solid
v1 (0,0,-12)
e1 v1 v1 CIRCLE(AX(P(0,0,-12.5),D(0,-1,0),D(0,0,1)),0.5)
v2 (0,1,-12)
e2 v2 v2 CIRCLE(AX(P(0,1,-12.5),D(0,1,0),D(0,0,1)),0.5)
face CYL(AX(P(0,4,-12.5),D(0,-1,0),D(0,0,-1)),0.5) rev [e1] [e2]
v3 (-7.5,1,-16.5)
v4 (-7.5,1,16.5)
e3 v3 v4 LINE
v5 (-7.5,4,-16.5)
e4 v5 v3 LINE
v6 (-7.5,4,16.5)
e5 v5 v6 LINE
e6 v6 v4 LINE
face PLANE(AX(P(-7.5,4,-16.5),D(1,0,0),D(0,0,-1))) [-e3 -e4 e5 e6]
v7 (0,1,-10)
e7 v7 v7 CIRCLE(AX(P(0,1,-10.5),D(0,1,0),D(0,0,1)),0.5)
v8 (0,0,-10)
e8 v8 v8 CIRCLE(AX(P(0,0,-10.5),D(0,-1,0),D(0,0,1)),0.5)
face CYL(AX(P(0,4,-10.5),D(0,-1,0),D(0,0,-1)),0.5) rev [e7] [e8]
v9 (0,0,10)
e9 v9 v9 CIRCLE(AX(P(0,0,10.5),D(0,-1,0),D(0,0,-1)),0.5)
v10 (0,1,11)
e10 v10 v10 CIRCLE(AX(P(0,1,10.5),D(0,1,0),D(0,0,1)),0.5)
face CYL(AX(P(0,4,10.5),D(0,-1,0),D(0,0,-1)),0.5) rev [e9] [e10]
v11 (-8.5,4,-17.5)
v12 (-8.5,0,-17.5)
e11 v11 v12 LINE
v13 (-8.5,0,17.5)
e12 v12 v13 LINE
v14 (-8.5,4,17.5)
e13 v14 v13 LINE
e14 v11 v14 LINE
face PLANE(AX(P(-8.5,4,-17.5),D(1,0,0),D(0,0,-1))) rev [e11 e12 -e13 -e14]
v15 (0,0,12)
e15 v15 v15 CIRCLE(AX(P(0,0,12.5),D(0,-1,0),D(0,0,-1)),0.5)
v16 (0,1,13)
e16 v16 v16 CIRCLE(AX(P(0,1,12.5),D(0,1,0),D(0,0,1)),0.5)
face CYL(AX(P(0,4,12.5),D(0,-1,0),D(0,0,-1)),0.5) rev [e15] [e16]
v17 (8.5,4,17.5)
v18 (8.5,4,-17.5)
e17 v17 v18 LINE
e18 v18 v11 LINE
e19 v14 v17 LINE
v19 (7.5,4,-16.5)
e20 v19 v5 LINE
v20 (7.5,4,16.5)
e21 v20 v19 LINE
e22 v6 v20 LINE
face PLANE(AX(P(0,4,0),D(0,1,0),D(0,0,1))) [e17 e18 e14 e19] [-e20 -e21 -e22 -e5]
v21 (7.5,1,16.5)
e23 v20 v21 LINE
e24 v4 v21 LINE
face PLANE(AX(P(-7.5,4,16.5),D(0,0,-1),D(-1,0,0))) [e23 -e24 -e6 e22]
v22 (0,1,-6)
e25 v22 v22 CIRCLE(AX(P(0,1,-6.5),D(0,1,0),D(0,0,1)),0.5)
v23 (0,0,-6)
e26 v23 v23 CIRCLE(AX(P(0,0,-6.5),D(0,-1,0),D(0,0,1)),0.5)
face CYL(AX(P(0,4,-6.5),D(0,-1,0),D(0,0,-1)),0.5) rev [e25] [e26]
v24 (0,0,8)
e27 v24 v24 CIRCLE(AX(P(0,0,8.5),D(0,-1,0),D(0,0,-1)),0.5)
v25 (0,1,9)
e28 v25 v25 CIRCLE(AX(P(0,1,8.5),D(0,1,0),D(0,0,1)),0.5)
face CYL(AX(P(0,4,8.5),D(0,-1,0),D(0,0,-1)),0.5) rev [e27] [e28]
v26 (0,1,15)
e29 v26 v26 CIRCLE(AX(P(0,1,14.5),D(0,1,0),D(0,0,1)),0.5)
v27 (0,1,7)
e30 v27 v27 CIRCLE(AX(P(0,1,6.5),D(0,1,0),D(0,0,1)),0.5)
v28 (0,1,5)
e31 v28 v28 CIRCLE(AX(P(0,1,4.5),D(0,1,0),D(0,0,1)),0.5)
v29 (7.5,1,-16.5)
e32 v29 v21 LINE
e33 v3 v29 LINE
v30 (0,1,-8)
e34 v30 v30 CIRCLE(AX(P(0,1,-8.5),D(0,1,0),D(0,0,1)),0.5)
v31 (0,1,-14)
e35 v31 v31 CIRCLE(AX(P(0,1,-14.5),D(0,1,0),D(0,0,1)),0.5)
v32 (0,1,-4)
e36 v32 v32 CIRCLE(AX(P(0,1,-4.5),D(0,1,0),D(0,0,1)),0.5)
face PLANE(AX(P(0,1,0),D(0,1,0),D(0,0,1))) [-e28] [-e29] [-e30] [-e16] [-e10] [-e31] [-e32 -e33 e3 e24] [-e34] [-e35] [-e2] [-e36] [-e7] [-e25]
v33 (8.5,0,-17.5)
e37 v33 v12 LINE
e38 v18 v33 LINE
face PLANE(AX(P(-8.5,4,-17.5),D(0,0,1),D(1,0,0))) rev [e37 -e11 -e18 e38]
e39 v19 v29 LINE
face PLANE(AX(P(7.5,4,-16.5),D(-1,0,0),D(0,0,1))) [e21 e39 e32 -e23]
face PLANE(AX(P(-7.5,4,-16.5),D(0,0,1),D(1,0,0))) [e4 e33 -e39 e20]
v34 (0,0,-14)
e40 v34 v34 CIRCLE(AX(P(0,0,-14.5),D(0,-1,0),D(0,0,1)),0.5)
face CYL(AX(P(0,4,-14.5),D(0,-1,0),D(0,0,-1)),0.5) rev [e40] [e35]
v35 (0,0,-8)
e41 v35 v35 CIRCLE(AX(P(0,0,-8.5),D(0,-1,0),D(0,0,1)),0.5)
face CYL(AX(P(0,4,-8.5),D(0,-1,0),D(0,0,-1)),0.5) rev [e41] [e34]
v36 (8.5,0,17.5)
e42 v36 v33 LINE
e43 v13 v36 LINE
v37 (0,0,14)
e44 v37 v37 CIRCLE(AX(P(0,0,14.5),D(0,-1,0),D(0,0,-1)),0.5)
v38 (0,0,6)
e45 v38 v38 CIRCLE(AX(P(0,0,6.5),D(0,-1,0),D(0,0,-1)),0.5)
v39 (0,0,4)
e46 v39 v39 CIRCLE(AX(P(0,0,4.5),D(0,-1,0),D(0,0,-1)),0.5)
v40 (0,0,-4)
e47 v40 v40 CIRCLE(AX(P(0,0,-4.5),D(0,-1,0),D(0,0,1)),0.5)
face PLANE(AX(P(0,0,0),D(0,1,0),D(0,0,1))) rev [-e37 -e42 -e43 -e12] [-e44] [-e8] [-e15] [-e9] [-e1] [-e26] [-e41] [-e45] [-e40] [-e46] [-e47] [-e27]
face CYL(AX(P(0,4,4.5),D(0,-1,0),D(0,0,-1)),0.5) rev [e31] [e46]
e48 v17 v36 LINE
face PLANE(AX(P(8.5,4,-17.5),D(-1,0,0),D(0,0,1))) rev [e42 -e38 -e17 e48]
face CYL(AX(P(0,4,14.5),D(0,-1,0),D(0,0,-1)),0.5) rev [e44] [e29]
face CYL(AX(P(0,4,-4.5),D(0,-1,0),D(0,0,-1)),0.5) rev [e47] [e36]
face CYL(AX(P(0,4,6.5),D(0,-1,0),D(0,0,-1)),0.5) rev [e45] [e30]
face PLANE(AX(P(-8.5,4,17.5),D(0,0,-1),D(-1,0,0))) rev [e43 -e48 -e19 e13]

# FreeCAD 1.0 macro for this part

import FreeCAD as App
import Part
import Sketcher

V = App.Vector

doc = App.newDocument("Part")
params = doc.addObject("Spreadsheet::Sheet", "Params")
for row, (alias, value) in enumerate([
    ("sketch1_width", "17 mm"),
    ("sketch1_width2", "15 mm"),
    ("sketch1_height", "35 mm"),
    ("sketch1_height2", "33 mm"),
    ("pad1_length", "4 mm"),
    ("sketch2_width", "15 mm"),
    ("sketch2_height", "33 mm"),
    ("pad2_length", "1 mm"),
    ("sketch3_diameter", "1 mm"),
], start=1):
    params.set(f"A{row}", alias)
    params.set(f"B{row}", "=" + value)
    params.setAlias(f"B{row}", alias)

body = doc.addObject("PartDesign::Body", "Body")

# Sketch on XZ plane
sketch1 = doc.addObject("Sketcher::SketchObject", "Sketch")
body.addObject(sketch1)
sketch1.AttachmentSupport = (doc.XZ_Plane, [""])
sketch1.MapMode = "FlatFace"
sketch1.addGeometry([
    Part.LineSegment(V(-8.5, -17.5, 0), V(-8.5, 17.5, 0)),  # 0
    Part.LineSegment(V(-8.5, 17.5, 0), V(8.5, 17.5, 0)),  # 1
    Part.LineSegment(V(8.5, 17.5, 0), V(8.5, -17.5, 0)),  # 2
    Part.LineSegment(V(8.5, -17.5, 0), V(-8.5, -17.5, 0)),  # 3
    Part.LineSegment(V(7.5, 16.5, 0), V(-7.5, 16.5, 0)),  # 4
    Part.LineSegment(V(-7.5, 16.5, 0), V(-7.5, -16.5, 0)),  # 5
    Part.LineSegment(V(-7.5, -16.5, 0), V(7.5, -16.5, 0)),  # 6
    Part.LineSegment(V(7.5, -16.5, 0), V(7.5, 16.5, 0)),  # 7
], False)
sketch1.addConstraint([
    Sketcher.Constraint("Coincident", 0, 2, 1, 1),
    Sketcher.Constraint("Coincident", 1, 2, 2, 1),
    Sketcher.Constraint("Coincident", 2, 2, 3, 1),
    Sketcher.Constraint("Coincident", 3, 2, 0, 1),
    Sketcher.Constraint("Coincident", 4, 2, 5, 1),
    Sketcher.Constraint("Coincident", 5, 2, 6, 1),
    Sketcher.Constraint("Coincident", 6, 2, 7, 1),
    Sketcher.Constraint("Coincident", 7, 2, 4, 1),
    Sketcher.Constraint("Vertical", 0),
    Sketcher.Constraint("Horizontal", 1),
    Sketcher.Constraint("Vertical", 2),
    Sketcher.Constraint("Horizontal", 3),
    Sketcher.Constraint("Horizontal", 4),
    Sketcher.Constraint("Vertical", 5),
    Sketcher.Constraint("Horizontal", 6),
    Sketcher.Constraint("Vertical", 7),
    Sketcher.Constraint("Symmetric", 0, 2, 2, 2, -1, 1),
    Sketcher.Constraint("Symmetric", 4, 2, 6, 2, -1, 1),
    Sketcher.Constraint("DistanceX", 1, 1, 1, 2, 17.0),
    Sketcher.Constraint("DistanceX", 4, 2, 4, 1, 15.0),
    Sketcher.Constraint("DistanceY", 0, 1, 0, 2, 35.0),
    Sketcher.Constraint("DistanceY", 5, 2, 5, 1, 33.0),
])
sketch1.setExpression("Constraints[18]", "Params.sketch1_width")
sketch1.setExpression("Constraints[19]", "Params.sketch1_width2")
sketch1.setExpression("Constraints[20]", "Params.sketch1_height")
sketch1.setExpression("Constraints[21]", "Params.sketch1_height2")
pad1 = doc.addObject("PartDesign::Pad", "Pad")
body.addObject(pad1)
pad1.Profile = sketch1
pad1.setExpression("Length", "Params.pad1_length")
pad1.Reversed = True

# Sketch on XZ plane
sketch2 = doc.addObject("Sketcher::SketchObject", "Sketch001")
body.addObject(sketch2)
sketch2.AttachmentSupport = (doc.XZ_Plane, [""])
sketch2.MapMode = "FlatFace"
sketch2.addGeometry([
    Part.LineSegment(V(-7.5, -16.5, 0), V(-7.5, 16.5, 0)),
    Part.LineSegment(V(-7.5, 16.5, 0), V(7.5, 16.5, 0)),
    Part.LineSegment(V(7.5, 16.5, 0), V(7.5, -16.5, 0)),
    Part.LineSegment(V(7.5, -16.5, 0), V(-7.5, -16.5, 0)),
], False)
sketch2.addConstraint([
    Sketcher.Constraint("Coincident", 0, 2, 1, 1),
    Sketcher.Constraint("Coincident", 1, 2, 2, 1),
    Sketcher.Constraint("Coincident", 2, 2, 3, 1),
    Sketcher.Constraint("Coincident", 3, 2, 0, 1),
    Sketcher.Constraint("Vertical", 0),
    Sketcher.Constraint("Horizontal", 1),
    Sketcher.Constraint("Vertical", 2),
    Sketcher.Constraint("Horizontal", 3),
    Sketcher.Constraint("Symmetric", 0, 2, 2, 2, -1, 1),
    Sketcher.Constraint("DistanceX", 1, 1, 1, 2, 15.0),
    Sketcher.Constraint("DistanceY", 0, 1, 0, 2, 33.0),
])
sketch2.setExpression("Constraints[9]", "Params.sketch2_width")
sketch2.setExpression("Constraints[10]", "Params.sketch2_height")
pad2 = doc.addObject("PartDesign::Pad", "Pad001")
body.addObject(pad2)
pad2.Profile = sketch2
pad2.setExpression("Length", "Params.pad2_length")
pad2.Reversed = True

# Sketch on XZ plane
sketch3 = doc.addObject("Sketcher::SketchObject", "Sketch002")
body.addObject(sketch3)
sketch3.AttachmentSupport = (doc.XZ_Plane, [""])
sketch3.MapMode = "FlatFace"
sketch3.addGeometry([
    Part.Circle(V(0, 14.5, 0), V(0, 0, 1), 0.5),  # 0
    Part.Circle(V(0, 12.5, 0), V(0, 0, 1), 0.5),  # 1
    Part.Circle(V(0, 10.5, 0), V(0, 0, 1), 0.5),  # 2
    Part.Circle(V(0, 8.5, 0), V(0, 0, 1), 0.5),  # 3
    Part.Circle(V(0, 6.5, 0), V(0, 0, 1), 0.5),  # 4
    Part.Circle(V(0, 4.5, 0), V(0, 0, 1), 0.5),  # 5
    Part.Circle(V(0, -4.5, 0), V(0, 0, 1), 0.5),  # 6
    Part.Circle(V(0, -6.5, 0), V(0, 0, 1), 0.5),  # 7
    Part.Circle(V(0, -8.5, 0), V(0, 0, 1), 0.5),  # 8
    Part.Circle(V(0, -10.5, 0), V(0, 0, 1), 0.5),  # 9
    Part.Circle(V(0, -12.5, 0), V(0, 0, 1), 0.5),  # 10
    Part.Circle(V(0, -14.5, 0), V(0, 0, 1), 0.5),  # 11
], False)
sketch3.addConstraint([
    Sketcher.Constraint("Equal", 0, 1),
    Sketcher.Constraint("Equal", 1, 2),
    Sketcher.Constraint("Equal", 2, 3),
    Sketcher.Constraint("Equal", 3, 4),
    Sketcher.Constraint("Equal", 4, 5),
    Sketcher.Constraint("Equal", 5, 6),
    Sketcher.Constraint("Equal", 6, 7),
    Sketcher.Constraint("Equal", 7, 8),
    Sketcher.Constraint("Equal", 8, 9),
    Sketcher.Constraint("Equal", 9, 10),
    Sketcher.Constraint("Equal", 10, 11),
    Sketcher.Constraint("Symmetric", 5, 3, 6, 3, -1, 1),
    Sketcher.Constraint("Symmetric", 4, 3, 7, 3, -1, 1),
    Sketcher.Constraint("Symmetric", 3, 3, 8, 3, -1, 1),
    Sketcher.Constraint("Symmetric", 2, 3, 9, 3, -1, 1),
    Sketcher.Constraint("Symmetric", 1, 3, 10, 3, -1, 1),
    Sketcher.Constraint("Symmetric", 0, 3, 11, 3, -1, 1),
    Sketcher.Constraint("PointOnObject", 0, 3, -2),
    Sketcher.Constraint("PointOnObject", 1, 3, -2),
    Sketcher.Constraint("PointOnObject", 2, 3, -2),
    Sketcher.Constraint("PointOnObject", 3, 3, -2),
    Sketcher.Constraint("PointOnObject", 4, 3, -2),
    Sketcher.Constraint("PointOnObject", 5, 3, -2),
    Sketcher.Constraint("Diameter", 0, 1.0),
    Sketcher.Constraint("DistanceY", 1, 3, 0, 3, 2.0),
    Sketcher.Constraint("DistanceY", 2, 3, 1, 3, 2.0),
    Sketcher.Constraint("DistanceY", 3, 3, 2, 3, 2.0),
    Sketcher.Constraint("DistanceY", 4, 3, 3, 3, 2.0),
    Sketcher.Constraint("DistanceY", 5, 3, 4, 3, 2.0),
    Sketcher.Constraint("DistanceY", 6, 3, 5, 3, 9.0),
])
sketch3.setExpression("Constraints[23]", "Params.sketch3_diameter")
pocket1 = doc.addObject("PartDesign::Pocket", "Pocket")
body.addObject(pocket1)
pocket1.Profile = sketch3
pocket1.Type = "ThroughAll"

doc.recompute()
